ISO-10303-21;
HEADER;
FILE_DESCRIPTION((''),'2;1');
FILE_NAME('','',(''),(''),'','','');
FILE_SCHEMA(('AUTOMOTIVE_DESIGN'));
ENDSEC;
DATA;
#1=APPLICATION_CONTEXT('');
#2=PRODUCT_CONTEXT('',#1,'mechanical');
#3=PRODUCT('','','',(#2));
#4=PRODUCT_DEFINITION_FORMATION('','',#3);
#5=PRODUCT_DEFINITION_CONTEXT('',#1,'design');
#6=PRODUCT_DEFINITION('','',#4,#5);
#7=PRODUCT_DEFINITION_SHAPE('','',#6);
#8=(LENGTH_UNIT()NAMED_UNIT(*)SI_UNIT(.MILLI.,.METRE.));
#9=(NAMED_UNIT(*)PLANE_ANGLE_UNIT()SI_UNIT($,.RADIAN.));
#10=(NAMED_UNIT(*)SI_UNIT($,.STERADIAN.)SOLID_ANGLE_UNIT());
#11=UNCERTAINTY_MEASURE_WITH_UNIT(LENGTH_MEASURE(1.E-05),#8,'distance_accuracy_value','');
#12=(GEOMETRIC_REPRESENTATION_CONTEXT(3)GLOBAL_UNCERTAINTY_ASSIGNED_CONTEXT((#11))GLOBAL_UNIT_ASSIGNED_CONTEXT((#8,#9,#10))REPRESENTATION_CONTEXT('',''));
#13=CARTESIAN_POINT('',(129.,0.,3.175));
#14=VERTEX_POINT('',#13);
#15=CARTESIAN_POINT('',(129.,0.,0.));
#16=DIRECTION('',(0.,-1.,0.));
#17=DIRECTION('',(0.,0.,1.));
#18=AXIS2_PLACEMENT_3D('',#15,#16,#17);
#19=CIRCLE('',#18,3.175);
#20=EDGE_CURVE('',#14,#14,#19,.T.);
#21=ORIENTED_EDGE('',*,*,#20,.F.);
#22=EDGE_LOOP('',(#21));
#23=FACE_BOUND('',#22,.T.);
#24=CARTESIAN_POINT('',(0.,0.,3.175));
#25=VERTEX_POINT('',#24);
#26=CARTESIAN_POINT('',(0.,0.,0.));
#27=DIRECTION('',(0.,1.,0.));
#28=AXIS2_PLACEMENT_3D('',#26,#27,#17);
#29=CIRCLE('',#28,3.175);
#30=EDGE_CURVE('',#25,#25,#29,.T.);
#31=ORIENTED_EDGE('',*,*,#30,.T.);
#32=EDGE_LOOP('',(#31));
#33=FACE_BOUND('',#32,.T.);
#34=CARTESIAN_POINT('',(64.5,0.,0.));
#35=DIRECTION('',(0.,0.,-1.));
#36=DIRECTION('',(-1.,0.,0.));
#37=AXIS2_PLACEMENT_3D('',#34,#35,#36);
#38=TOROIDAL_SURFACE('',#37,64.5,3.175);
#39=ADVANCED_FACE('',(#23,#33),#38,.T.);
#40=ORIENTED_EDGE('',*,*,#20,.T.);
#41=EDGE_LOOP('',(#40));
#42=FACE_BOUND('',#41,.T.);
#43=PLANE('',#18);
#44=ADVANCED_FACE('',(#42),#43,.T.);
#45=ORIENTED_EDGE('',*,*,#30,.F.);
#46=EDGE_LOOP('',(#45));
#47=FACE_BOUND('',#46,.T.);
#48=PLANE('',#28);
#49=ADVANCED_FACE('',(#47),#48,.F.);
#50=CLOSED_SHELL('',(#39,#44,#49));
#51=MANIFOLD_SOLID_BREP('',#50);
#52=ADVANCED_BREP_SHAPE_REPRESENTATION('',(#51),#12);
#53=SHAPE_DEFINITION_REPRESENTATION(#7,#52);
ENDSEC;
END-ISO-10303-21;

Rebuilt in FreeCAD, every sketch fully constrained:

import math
import FreeCAD as App
import Part
import Sketcher

V = App.Vector

doc = App.newDocument("Part")
body = doc.addObject("PartDesign::Body", "Body")

# Sketch on XZ plane
sketch1 = body.newObject("Sketcher::SketchObject", "Sketch")
sketch1.AttachmentSupport = (doc.getObject("XZ_Plane"), [""])
sketch1.MapMode = "FlatFace"
sketch1.addGeometry(Part.Circle(V(0, 0, 0), V(0, 0, 1), 3.2), False)
sketch1.addConstraint(Sketcher.Constraint("Coincident", 0, 3, -1, 1))
sketch1.addConstraint(Sketcher.Constraint("Diameter", 0, 6.35))

# Sketch on XY plane
sketch2 = body.newObject("Sketcher::SketchObject", "Sketch001")
sketch2.AttachmentSupport = (doc.getObject("XY_Plane"), [""])
sketch2.MapMode = "FlatFace"
sketch2.addGeometry(Part.ArcOfCircle(Part.Circle(V(64, 0, 0), V(0, 0, 1), 64), math.radians(0), math.radians(180)), False)
sketch2.addConstraint(Sketcher.Constraint("Coincident", 0, 2, -1, 1))
sketch2.addConstraint(Sketcher.Constraint("PointOnObject", 0, 3, -1))
sketch2.addConstraint(Sketcher.Constraint("PointOnObject", 0, 1, -1))
sketch2.addConstraint(Sketcher.Constraint("Radius", 0, 64.5))
doc.recompute()

additivepipe = body.newObject("PartDesign::AdditivePipe", "AdditivePipe")
additivepipe.Profile = sketch1
additivepipe.Spine = (sketch2, ["Edge1"])

doc.recompute()
